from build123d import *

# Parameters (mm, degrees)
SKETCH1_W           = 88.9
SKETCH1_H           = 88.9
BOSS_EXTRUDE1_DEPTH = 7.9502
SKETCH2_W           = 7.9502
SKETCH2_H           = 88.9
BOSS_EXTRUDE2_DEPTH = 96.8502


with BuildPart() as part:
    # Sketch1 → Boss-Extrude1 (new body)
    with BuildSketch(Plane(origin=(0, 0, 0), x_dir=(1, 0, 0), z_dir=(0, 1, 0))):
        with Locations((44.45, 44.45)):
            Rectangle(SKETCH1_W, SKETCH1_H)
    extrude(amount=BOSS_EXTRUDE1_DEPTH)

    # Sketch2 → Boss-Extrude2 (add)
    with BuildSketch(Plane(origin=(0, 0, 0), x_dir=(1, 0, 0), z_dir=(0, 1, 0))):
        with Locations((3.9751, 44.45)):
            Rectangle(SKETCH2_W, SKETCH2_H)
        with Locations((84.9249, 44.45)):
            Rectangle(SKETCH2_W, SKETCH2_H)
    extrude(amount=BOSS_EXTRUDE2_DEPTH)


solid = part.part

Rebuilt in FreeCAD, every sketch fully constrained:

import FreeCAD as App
import Part
import Sketcher

V = App.Vector
Q = App.Units.Quantity


def add_polygon(sketch, points):
    """Adds a closed chain of lines whose ends are joined by coincident constraints."""
    first, n = sketch.GeometryCount, len(points)
    for a, b in zip(points, points[1:] + points[:1]):
        sketch.addGeometry(Part.LineSegment(App.Vector(*a, 0), App.Vector(*b, 0)), False)
    for i in range(n):
        sketch.addConstraint(Sketcher.Constraint("Coincident", first + i, 2, first + (i + 1) % n, 1))

doc = App.newDocument("Part")
body = doc.addObject("PartDesign::Body", "Body")

# Sketch on XZ plane
sketch1 = body.newObject("Sketcher::SketchObject", "Sketch")
sketch1.AttachmentSupport = (doc.getObject("XZ_Plane"), [""])
sketch1.MapMode = "FlatFace"
add_polygon(sketch1, [(0, -89), (0, 0), (89, 0), (89, -89)])  # lines 0-3
sketch1.addConstraint([
    Sketcher.Constraint("Vertical", 0),
    Sketcher.Constraint("Horizontal", 1),
    Sketcher.Constraint("Vertical", 2),
    Sketcher.Constraint("Horizontal", 3),
    Sketcher.Constraint("Coincident", 0, 2, -1, 1),
    Sketcher.Constraint("Equal", 3, 0),
    Sketcher.Constraint("DistanceX", 1, 1, 1, 2, Q("3.5 in")),
])
pad1 = body.newObject("PartDesign::Pad", "Pad")
pad1.Profile = sketch1
pad1.Length = Q("0.313 in")
pad1.Reversed = True

# Sketch on XZ plane
sketch2 = body.newObject("Sketcher::SketchObject", "Sketch001")
sketch2.AttachmentSupport = (doc.getObject("XZ_Plane"), [""])
sketch2.MapMode = "FlatFace"
add_polygon(sketch2, [(0, -89), (0, 0), (8, 0), (8, -89)])  # lines 0-3
add_polygon(sketch2, [(81, -89), (81, 0), (89, 0), (89, -89)])  # lines 4-7
sketch2.addConstraint([
    Sketcher.Constraint("Vertical", 0),
    Sketcher.Constraint("Horizontal", 1),
    Sketcher.Constraint("Vertical", 2),
    Sketcher.Constraint("Horizontal", 3),
    Sketcher.Constraint("Vertical", 4),
    Sketcher.Constraint("Horizontal", 5),
    Sketcher.Constraint("Vertical", 6),
    Sketcher.Constraint("Horizontal", 7),
    Sketcher.Constraint("Coincident", 0, 2, -1, 1),
    Sketcher.Constraint("PointOnObject", 4, 2, -1),
    Sketcher.Constraint("Horizontal", 3, 2, 6, 2),
    Sketcher.Constraint("Equal", 3, 5),
    Sketcher.Constraint("DistanceY", 0, 1, 0, 2, Q("3.5 in")),
    Sketcher.Constraint("DistanceX", -1, 1, 5, 2, Q("3.5 in")),
    Sketcher.Constraint("DistanceX", 1, 1, 1, 2, Q("0.313 in")),
])
pad2 = body.newObject("PartDesign::Pad", "Pad001")
pad2.Profile = sketch2
pad2.Length = Q("3.813 in")
pad2.Reversed = True

doc.recompute()
